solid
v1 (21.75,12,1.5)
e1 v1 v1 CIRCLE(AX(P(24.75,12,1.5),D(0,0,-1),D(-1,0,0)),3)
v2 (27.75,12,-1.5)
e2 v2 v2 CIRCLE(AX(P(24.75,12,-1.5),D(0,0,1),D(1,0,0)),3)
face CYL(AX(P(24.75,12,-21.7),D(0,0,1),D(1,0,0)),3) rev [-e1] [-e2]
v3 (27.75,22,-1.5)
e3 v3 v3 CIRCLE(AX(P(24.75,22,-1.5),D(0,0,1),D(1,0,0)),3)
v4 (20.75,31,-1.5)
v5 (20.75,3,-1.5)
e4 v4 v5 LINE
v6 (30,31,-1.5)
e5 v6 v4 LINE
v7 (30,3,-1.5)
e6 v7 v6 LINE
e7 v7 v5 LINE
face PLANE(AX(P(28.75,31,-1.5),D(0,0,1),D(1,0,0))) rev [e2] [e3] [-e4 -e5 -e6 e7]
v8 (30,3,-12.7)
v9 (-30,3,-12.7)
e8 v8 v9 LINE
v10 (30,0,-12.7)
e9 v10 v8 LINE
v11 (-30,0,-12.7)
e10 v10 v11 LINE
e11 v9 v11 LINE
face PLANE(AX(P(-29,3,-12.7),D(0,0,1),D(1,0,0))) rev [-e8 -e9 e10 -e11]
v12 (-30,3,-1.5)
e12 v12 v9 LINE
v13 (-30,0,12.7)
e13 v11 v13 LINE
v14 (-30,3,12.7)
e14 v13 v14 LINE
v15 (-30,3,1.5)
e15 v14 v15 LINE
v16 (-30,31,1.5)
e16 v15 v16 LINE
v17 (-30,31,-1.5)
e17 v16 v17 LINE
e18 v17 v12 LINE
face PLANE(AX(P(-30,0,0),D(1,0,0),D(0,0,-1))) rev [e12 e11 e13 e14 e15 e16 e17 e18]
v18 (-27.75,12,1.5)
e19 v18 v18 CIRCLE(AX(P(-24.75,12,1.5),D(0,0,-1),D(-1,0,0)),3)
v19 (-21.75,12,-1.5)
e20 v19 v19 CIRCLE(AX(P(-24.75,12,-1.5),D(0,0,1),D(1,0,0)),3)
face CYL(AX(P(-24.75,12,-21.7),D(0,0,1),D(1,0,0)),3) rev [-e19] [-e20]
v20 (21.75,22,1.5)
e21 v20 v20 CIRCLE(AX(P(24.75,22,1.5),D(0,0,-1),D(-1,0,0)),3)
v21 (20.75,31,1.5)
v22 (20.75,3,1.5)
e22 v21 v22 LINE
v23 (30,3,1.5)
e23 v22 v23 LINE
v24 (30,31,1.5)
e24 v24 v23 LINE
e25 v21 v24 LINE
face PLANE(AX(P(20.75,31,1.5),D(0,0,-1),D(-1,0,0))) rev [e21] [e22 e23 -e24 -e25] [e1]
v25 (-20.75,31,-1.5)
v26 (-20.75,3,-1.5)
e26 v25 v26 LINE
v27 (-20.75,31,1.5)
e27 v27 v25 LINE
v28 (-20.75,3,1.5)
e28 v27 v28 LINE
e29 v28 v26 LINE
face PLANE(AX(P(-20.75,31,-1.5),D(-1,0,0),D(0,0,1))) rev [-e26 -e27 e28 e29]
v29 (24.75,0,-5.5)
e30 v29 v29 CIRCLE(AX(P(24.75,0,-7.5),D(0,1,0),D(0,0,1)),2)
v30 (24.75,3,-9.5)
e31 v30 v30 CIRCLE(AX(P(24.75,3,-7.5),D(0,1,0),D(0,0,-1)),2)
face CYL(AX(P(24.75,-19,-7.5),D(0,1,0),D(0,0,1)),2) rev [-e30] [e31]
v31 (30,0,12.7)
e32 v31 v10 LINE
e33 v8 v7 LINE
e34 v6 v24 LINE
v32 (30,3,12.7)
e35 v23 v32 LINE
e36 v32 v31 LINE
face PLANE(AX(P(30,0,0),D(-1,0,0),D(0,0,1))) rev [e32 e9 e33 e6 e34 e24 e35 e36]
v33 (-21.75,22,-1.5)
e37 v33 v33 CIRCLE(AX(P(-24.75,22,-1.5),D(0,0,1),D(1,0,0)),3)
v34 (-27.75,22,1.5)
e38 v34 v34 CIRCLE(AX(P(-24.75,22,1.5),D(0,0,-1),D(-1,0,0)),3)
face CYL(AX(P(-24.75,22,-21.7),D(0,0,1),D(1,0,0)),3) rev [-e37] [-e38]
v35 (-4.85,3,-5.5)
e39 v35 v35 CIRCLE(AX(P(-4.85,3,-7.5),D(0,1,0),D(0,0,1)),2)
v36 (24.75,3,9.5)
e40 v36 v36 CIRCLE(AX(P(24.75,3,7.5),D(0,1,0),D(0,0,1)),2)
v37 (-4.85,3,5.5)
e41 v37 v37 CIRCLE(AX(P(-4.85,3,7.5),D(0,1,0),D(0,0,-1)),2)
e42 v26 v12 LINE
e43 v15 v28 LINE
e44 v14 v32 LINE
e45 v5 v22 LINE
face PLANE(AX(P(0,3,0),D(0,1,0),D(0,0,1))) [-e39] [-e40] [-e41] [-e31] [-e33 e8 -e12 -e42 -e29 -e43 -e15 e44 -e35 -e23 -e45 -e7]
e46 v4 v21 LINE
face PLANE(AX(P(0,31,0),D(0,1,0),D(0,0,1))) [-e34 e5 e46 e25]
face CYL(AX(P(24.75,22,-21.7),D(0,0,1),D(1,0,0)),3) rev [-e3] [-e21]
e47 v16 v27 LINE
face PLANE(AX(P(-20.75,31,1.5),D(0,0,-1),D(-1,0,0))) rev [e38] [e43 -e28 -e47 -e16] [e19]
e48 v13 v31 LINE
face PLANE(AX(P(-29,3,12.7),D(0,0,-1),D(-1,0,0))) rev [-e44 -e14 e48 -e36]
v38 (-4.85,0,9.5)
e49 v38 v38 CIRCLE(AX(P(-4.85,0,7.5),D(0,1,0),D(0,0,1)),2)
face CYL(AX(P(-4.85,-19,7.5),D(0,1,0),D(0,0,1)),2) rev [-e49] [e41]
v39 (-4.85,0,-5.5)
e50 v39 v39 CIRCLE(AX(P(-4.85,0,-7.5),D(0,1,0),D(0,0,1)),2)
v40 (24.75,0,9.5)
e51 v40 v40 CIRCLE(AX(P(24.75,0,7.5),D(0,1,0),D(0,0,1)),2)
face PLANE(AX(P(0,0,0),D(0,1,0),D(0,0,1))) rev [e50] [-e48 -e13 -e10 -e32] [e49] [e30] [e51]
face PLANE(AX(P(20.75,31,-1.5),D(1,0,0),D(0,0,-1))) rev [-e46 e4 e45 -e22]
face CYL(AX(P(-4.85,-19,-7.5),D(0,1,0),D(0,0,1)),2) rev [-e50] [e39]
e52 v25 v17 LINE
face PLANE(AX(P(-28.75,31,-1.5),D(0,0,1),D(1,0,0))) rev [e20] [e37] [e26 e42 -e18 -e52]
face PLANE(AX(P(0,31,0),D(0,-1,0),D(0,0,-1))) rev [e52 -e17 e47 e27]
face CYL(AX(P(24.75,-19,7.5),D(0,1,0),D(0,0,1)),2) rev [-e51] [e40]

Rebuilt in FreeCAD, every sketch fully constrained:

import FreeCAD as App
import Part
import Sketcher
from FreeCAD import Vector


def add_polygon(sketch, points):
    """Adds a closed chain of lines whose ends are joined by coincident constraints."""
    first, n = sketch.GeometryCount, len(points)
    for a, b in zip(points, points[1:] + points[:1]):
        sketch.addGeometry(Part.LineSegment(App.Vector(*a, 0), App.Vector(*b, 0)), False)
    for i in range(n):
        sketch.addConstraint(Sketcher.Constraint("Coincident", first + i, 2, first + (i + 1) % n, 1))

doc = App.newDocument("Part")
body = doc.addObject("PartDesign::Body", "Body")

# Sketch on XZ plane
sketch1 = body.newObject("Sketcher::SketchObject", "Sketch")
sketch1.AttachmentSupport = (doc.getObject("XZ_Plane"), [""])
sketch1.MapMode = "FlatFace"
add_polygon(sketch1, [(-29, -13), (-29, 13), (29, 13), (29, -13)])  # lines 0-3
sketch1.addConstraint([
    Sketcher.Constraint("Vertical", 0),
    Sketcher.Constraint("Horizontal", 1),
    Sketcher.Constraint("Vertical", 2),
    Sketcher.Constraint("Horizontal", 3),
    Sketcher.Constraint("Symmetric", 0, 2, 2, 2, -1, 1),
    Sketcher.Constraint("DistanceX", 1, 1, 1, 2, 58.0),
    Sketcher.Constraint("DistanceY", 0, 1, 0, 2, 25.4),
])
pad1 = body.newObject("PartDesign::Pad", "Pad")
pad1.Profile = sketch1
pad1.Length = 3
pad1.Reversed = True

# Sketch on XZ plane
sketch2 = body.newObject("Sketcher::SketchObject", "Sketch001")
sketch2.AttachmentSupport = (doc.getObject("XZ_Plane"), [""])
sketch2.MapMode = "FlatFace"
sketch2.AttachmentOffset = App.Placement(Vector(0, 0, -3), App.Rotation())
add_polygon(sketch2, [(-28.8, -12.7), (-28.8, -9.7), (-20.8, -9.7), (-20.8, -12.7)])  # lines 0-3
add_polygon(sketch2, [(20.8, -12.7), (20.8, -9.7), (28.8, -9.7), (28.8, -12.7)])  # lines 4-7
add_polygon(sketch2, [(-28.8, -1.5), (-28.8, 1.5), (-20.8, 1.5), (-20.8, -1.5)])  # lines 8-11
add_polygon(sketch2, [(20.8, -1.5), (20.8, 1.5), (28.8, 1.5), (28.8, -1.5)])  # lines 12-15
sketch2.addConstraint([
    Sketcher.Constraint("Vertical", 0),
    Sketcher.Constraint("Horizontal", 1),
    Sketcher.Constraint("Vertical", 2),
    Sketcher.Constraint("Horizontal", 3),
    Sketcher.Constraint("Vertical", 4),
    Sketcher.Constraint("Horizontal", 5),
    Sketcher.Constraint("Vertical", 6),
    Sketcher.Constraint("Horizontal", 7),
    Sketcher.Constraint("Vertical", 8),
    Sketcher.Constraint("Horizontal", 9),
    Sketcher.Constraint("Vertical", 10),
    Sketcher.Constraint("Horizontal", 11),
    Sketcher.Constraint("Vertical", 12),
    Sketcher.Constraint("Horizontal", 13),
    Sketcher.Constraint("Vertical", 14),
    Sketcher.Constraint("Horizontal", 15),
    Sketcher.Constraint("Symmetric", 10, 2, 12, 2, -1, 1),
    Sketcher.Constraint("Symmetric", 8, 2, 14, 2, -1, 1),
    Sketcher.Constraint("Symmetric", 1, 2, 4, 2, -2),
    Sketcher.Constraint("Symmetric", 3, 2, 6, 2, -2),
    Sketcher.Constraint("Horizontal", 9, 2, 12, 2),
    Sketcher.Constraint("Vertical", 3, 2, 8, 2),
    Sketcher.Constraint("Vertical", 2, 2, 9, 2),
    Sketcher.Constraint("Equal", 6, 8),
    Sketcher.Constraint("DistanceX", 1, 1, 1, 2, 8.0),
    Sketcher.Constraint("DistanceY", 0, 1, 0, 2, 3.0),
    Sketcher.Constraint("DistanceY", 0, 2, -1, 1, 9.7),
    Sketcher.Constraint("DistanceX", 1, 2, 4, 2, 41.5),
])
pad2 = body.newObject("PartDesign::Pad", "Pad001")
pad2.Profile = sketch2
pad2.Length = 28
pad2.Reversed = True

# Sketch on XY plane
sketch3 = body.newObject("Sketcher::SketchObject", "Sketch002")
sketch3.AttachmentSupport = (doc.getObject("XY_Plane"), [""])
sketch3.MapMode = "FlatFace"
sketch3.AttachmentOffset = App.Placement(Vector(0, 0, -9.7), App.Rotation())
sketch3.addGeometry([
    Part.Circle(Vector(-24.8, 12, 0), Vector(0, 0, 1), 3),
    Part.Circle(Vector(-24.8, 22, 0), Vector(0, 0, 1), 3),
    Part.Circle(Vector(24.8, 12, 0), Vector(0, 0, 1), 3),
    Part.Circle(Vector(24.8, 22, 0), Vector(0, 0, 1), 3),
], False)
sketch3.addConstraint([
    Sketcher.Constraint("Equal", 0, 1),
    Sketcher.Constraint("Equal", 1, 2),
    Sketcher.Constraint("Equal", 2, 3),
    Sketcher.Constraint("Symmetric", 0, 3, 2, 3, -2),
    Sketcher.Constraint("Symmetric", 1, 3, 3, 3, -2),
    Sketcher.Constraint("Vertical", 0, 3, 1, 3),
    Sketcher.Constraint("Diameter", 0, 6.0),
    Sketcher.Constraint("DistanceY", -1, 1, 0, 3, 12.0),
    Sketcher.Constraint("DistanceY", -1, 1, 1, 3, 22.0),
    Sketcher.Constraint("DistanceX", 0, 3, 2, 3, 49.5),
])
pocket1 = body.newObject("PartDesign::Pocket", "Pocket")
pocket1.Profile = sketch3
pocket1.Length = 24
pocket1.Midplane = True

# Sketch on XZ plane
sketch4 = body.newObject("Sketcher::SketchObject", "Sketch003")
sketch4.AttachmentSupport = (doc.getObject("XZ_Plane"), [""])
sketch4.MapMode = "FlatFace"
sketch4.AttachmentOffset = App.Placement(Vector(0, 0, -3), App.Rotation())
sketch4.addGeometry([
    Part.Circle(Vector(24.8, 7.5, 0), Vector(0, 0, 1), 2),
    Part.Circle(Vector(24.8, -7.5, 0), Vector(0, 0, 1), 2),
    Part.Circle(Vector(-4.8, -7.5, 0), Vector(0, 0, 1), 2),
    Part.Circle(Vector(-4.8, 7.5, 0), Vector(0, 0, 1), 2),
], False)
sketch4.addConstraint([
    Sketcher.Constraint("Equal", 0, 1),
    Sketcher.Constraint("Equal", 1, 2),
    Sketcher.Constraint("Equal", 2, 3),
    Sketcher.Constraint("Symmetric", 0, 3, 1, 3, -1),
    Sketcher.Constraint("Symmetric", 2, 3, 3, 3, -1),
    Sketcher.Constraint("Horizontal", 1, 3, 2, 3),
    Sketcher.Constraint("Diameter", 0, 4.0),
    Sketcher.Constraint("DistanceY", 1, 3, 0, 3, 15.0),
    Sketcher.Constraint("DistanceX", 2, 3, 1, 3, 29.6),
    Sketcher.Constraint("DistanceX", -1, 1, 0, 3, 24.75),
])
pocket2 = body.newObject("PartDesign::Pocket", "Pocket001")
pocket2.Profile = sketch4
pocket2.Length = 22
pocket2.Reversed = True

# Sketch on XZ plane
sketch5 = body.newObject("Sketcher::SketchObject", "Sketch004")
sketch5.AttachmentSupport = (doc.getObject("XZ_Plane"), [""])
sketch5.MapMode = "FlatFace"
sketch5.AttachmentOffset = App.Placement(Vector(0, 0, -31), App.Rotation())
add_polygon(sketch5, [(-28.8, -12.7), (-28.8, -9.7), (-20.8, -9.7), (-20.8, -12.7)])  # lines 0-3
add_polygon(sketch5, [(20.8, -12.7), (20.8, -9.7), (28.8, -9.7), (28.8, -12.7)])  # lines 4-7
sketch5.addConstraint([
    Sketcher.Constraint("Vertical", 0),
    Sketcher.Constraint("Horizontal", 1),
    Sketcher.Constraint("Vertical", 2),
    Sketcher.Constraint("Horizontal", 3),
    Sketcher.Constraint("Vertical", 4),
    Sketcher.Constraint("Horizontal", 5),
    Sketcher.Constraint("Vertical", 6),
    Sketcher.Constraint("Horizontal", 7),
    Sketcher.Constraint("Symmetric", 1, 2, 4, 2, -2),
    Sketcher.Constraint("Symmetric", 3, 2, 6, 2, -2),
    Sketcher.Constraint("DistanceX", 1, 1, 1, 2, 8.0),
    Sketcher.Constraint("DistanceY", 0, 1, 0, 2, 3.0),
    Sketcher.Constraint("DistanceY", 0, 2, -1, 1, 9.7),
    Sketcher.Constraint("DistanceX", 1, 2, 4, 2, 41.5),
])
pocket3 = body.newObject("PartDesign::Pocket", "Pocket002")
pocket3.Profile = sketch5
pocket3.Length = 28
pocket3.Reversed = True

# Sketch on YZ plane
sketch6 = body.newObject("Sketcher::SketchObject", "Sketch005")
sketch6.AttachmentSupport = (doc.getObject("YZ_Plane"), [""])
sketch6.MapMode = "FlatFace"
sketch6.AttachmentOffset = App.Placement(Vector(0, 0, 29), App.Rotation())
add_polygon(sketch6, [(3, 1.5), (3, 12.7), (0, 12.7), (0, -12.7), (3, -12.7), (3, -1.5), (31, -1.5), (31, 1.5)])  # lines 0-7
sketch6.addConstraint([
    Sketcher.Constraint("Vertical", 0),
    Sketcher.Constraint("Horizontal", 1),
    Sketcher.Constraint("Vertical", 2),
    Sketcher.Constraint("Horizontal", 3),
    Sketcher.Constraint("Vertical", 4),
    Sketcher.Constraint("Horizontal", 5),
    Sketcher.Constraint("Vertical", 6),
    Sketcher.Constraint("Horizontal", 7),
    Sketcher.Constraint("Symmetric", 1, 2, 2, 2, -1, 1),
    Sketcher.Constraint("Symmetric", 4, 2, 7, 2, -1),
    Sketcher.Constraint("Equal", 3, 6),
    Sketcher.Constraint("DistanceX", 1, 2, 1, 1, 3.0),
    Sketcher.Constraint("DistanceX", 5, 1, 5, 2, 28.0),
    Sketcher.Constraint("DistanceY", 0, 1, 0, 2, 11.2),
])
pad3 = body.newObject("PartDesign::Pad", "Pad002")
pad3.Profile = sketch6
pad3.Length = 2
pad3.Midplane = True

# Sketch on YZ plane
sketch7 = body.newObject("Sketcher::SketchObject", "Sketch006")
sketch7.AttachmentSupport = (doc.getObject("YZ_Plane"), [""])
sketch7.MapMode = "FlatFace"
sketch7.AttachmentOffset = App.Placement(Vector(0, 0, -29), App.Rotation())
add_polygon(sketch7, [(3, -1.5), (3, -12.7), (0, -12.7), (0, 12.7), (3, 12.7), (3, 1.5), (31, 1.5), (31, -1.5)])  # lines 0-7
sketch7.addConstraint([
    Sketcher.Constraint("Vertical", 0),
    Sketcher.Constraint("Horizontal", 1),
    Sketcher.Constraint("Vertical", 2),
    Sketcher.Constraint("Horizontal", 3),
    Sketcher.Constraint("Vertical", 4),
    Sketcher.Constraint("Horizontal", 5),
    Sketcher.Constraint("Vertical", 6),
    Sketcher.Constraint("Horizontal", 7),
    Sketcher.Constraint("Symmetric", 1, 2, 2, 2, -1, 1),
    Sketcher.Constraint("Symmetric", 4, 2, 7, 2, -1),
    Sketcher.Constraint("Equal", 3, 6),
    Sketcher.Constraint("DistanceX", 1, 2, 1, 1, 3.0),
    Sketcher.Constraint("DistanceX", 5, 1, 5, 2, 28.0),
    Sketcher.Constraint("DistanceY", 0, 2, 0, 1, 11.2),
])
pad4 = body.newObject("PartDesign::Pad", "Pad003")
pad4.Profile = sketch7
pad4.Length = 2
pad4.Midplane = True

doc.recompute()
